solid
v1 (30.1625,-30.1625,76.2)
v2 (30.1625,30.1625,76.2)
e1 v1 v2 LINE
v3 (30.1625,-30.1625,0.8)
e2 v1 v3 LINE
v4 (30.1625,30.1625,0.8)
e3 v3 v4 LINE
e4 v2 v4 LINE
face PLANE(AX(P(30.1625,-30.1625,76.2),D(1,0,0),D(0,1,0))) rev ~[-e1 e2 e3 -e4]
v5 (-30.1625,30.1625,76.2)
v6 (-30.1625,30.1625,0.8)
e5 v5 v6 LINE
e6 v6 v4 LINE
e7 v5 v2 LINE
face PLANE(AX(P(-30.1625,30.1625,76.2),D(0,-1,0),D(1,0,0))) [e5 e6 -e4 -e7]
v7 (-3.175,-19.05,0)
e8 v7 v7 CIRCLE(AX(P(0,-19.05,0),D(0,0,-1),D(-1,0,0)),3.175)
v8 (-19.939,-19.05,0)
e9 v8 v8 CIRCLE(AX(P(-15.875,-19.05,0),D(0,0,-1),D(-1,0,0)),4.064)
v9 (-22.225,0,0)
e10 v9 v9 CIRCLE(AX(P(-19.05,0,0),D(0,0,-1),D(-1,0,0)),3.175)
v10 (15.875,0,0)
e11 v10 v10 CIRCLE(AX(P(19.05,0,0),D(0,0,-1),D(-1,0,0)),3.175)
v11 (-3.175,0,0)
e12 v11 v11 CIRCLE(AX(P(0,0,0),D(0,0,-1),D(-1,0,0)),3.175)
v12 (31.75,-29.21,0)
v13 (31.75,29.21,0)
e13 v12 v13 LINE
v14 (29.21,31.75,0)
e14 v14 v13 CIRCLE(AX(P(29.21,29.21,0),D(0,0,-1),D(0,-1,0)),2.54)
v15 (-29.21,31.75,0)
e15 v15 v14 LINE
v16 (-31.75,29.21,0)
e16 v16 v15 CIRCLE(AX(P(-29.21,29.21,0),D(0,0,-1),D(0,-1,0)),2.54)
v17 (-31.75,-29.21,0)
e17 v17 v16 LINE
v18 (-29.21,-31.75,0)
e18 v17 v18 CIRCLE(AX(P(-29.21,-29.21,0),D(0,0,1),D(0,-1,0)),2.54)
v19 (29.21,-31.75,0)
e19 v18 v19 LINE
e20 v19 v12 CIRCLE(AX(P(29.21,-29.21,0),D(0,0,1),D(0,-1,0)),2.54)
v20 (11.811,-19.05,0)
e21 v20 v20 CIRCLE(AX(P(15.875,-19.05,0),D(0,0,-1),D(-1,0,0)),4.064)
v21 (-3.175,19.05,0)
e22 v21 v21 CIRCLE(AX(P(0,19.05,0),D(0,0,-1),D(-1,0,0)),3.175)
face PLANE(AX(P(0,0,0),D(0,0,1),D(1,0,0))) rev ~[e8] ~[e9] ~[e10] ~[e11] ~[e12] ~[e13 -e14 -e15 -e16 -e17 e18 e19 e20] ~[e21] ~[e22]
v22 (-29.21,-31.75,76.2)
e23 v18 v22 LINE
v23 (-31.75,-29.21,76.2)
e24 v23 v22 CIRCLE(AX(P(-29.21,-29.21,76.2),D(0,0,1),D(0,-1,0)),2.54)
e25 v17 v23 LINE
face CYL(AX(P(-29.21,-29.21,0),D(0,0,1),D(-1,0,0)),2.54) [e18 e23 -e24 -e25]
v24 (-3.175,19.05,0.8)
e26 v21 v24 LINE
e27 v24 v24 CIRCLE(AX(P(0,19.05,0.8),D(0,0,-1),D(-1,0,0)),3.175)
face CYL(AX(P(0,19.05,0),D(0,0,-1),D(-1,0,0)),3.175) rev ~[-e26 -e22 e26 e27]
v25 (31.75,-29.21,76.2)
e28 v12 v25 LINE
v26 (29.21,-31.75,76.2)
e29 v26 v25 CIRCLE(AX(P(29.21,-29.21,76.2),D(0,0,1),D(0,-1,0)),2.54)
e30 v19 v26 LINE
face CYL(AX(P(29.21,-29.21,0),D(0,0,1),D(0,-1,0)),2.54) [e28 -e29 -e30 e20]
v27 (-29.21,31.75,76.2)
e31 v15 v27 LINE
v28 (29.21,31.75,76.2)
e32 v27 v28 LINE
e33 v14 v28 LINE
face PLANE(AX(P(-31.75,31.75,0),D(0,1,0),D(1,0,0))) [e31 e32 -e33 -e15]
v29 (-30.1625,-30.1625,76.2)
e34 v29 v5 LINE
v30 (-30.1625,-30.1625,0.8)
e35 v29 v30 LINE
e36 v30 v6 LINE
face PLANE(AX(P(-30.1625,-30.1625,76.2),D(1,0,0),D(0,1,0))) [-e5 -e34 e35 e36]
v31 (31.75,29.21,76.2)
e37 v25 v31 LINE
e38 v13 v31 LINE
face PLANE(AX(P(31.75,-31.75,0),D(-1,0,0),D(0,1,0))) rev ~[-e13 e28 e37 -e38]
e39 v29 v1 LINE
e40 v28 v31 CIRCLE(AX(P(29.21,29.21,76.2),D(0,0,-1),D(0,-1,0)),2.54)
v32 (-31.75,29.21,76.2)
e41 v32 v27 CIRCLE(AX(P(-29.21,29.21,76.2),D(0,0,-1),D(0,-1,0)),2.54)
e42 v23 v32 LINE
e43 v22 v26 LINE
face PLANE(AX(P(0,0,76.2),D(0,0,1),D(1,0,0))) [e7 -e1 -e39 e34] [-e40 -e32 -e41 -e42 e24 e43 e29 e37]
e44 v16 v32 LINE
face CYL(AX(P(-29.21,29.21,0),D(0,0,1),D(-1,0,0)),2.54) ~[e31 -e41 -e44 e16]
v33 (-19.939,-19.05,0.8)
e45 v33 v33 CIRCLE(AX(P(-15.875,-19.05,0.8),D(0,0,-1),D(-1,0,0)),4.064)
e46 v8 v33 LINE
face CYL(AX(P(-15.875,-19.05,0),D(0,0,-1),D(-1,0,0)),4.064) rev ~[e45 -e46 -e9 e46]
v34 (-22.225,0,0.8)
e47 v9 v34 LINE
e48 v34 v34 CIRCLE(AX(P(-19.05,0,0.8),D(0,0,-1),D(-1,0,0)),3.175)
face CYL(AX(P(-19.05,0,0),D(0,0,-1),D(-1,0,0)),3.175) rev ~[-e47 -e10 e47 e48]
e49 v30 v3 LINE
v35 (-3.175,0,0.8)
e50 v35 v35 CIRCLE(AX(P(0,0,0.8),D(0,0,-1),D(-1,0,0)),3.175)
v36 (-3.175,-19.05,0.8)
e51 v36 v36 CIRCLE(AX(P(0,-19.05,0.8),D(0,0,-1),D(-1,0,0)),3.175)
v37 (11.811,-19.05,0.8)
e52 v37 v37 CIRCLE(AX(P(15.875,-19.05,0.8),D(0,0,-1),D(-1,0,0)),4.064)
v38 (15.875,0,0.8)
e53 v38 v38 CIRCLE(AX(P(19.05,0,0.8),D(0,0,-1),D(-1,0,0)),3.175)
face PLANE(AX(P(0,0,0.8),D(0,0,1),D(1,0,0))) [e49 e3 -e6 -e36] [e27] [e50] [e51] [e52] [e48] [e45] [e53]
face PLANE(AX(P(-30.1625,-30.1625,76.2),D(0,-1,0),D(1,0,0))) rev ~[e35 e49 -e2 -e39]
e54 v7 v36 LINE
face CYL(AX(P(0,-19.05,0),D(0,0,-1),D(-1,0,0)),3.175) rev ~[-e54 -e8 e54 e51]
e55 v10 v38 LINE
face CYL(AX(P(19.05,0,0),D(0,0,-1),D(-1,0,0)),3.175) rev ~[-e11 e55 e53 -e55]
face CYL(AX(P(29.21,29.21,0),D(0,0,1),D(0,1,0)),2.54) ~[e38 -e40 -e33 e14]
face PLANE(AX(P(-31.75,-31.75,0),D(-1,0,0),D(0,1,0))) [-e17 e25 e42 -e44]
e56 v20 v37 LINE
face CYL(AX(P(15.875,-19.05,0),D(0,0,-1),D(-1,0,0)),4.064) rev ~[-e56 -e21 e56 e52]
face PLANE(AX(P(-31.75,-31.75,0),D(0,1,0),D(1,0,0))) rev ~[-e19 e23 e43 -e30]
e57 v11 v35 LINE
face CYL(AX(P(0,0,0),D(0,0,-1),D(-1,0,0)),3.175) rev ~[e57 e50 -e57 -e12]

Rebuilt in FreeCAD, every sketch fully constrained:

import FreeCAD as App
import Part
import Sketcher
Q = App.Units.Quantity


def edges_at(feature, points):
    """Names of the edges that pass closest to the given points."""
    edges = feature.Shape.Edges
    near = lambda p: min(range(len(edges)), key=lambda i: edges[i].distToShape(Part.Vertex(*p))[0])
    return sorted({f"Edge{near(p) + 1}" for p in points})


def add_polygon(sketch, points):
    """Adds a closed chain of lines whose ends are joined by coincident constraints."""
    first, n = sketch.GeometryCount, len(points)
    for a, b in zip(points, points[1:] + points[:1]):
        sketch.addGeometry(Part.LineSegment(App.Vector(*a, 0), App.Vector(*b, 0)), False)
    for i in range(n):
        sketch.addConstraint(Sketcher.Constraint("Coincident", first + i, 2, first + (i + 1) % n, 1))

doc = App.newDocument("Part")
body = doc.addObject("PartDesign::Body", "Body")

sketch1 = doc.addObject("Sketcher::SketchObject", "Sketch")
body.addObject(sketch1)
sketch1.AttachmentSupport = (doc.XY_Plane, [""])
sketch1.MapMode = "FlatFace"
add_polygon(sketch1, [(-32, 32), (-32, -32), (32, -32), (32, 32)])
sketch1.addConstraint([
    Sketcher.Constraint("Vertical", 0),
    Sketcher.Constraint("Horizontal", 1),
    Sketcher.Constraint("Vertical", 2),
    Sketcher.Constraint("Horizontal", 3),
    Sketcher.Constraint("Symmetric", 0, 2, 2, 2, -1, 1),
    Sketcher.Constraint("Equal", 3, 0),
    Sketcher.Constraint("DistanceX", 1, 1, 1, 2, Q("2.5 in")),
])
pad1 = doc.addObject("PartDesign::Pad", "Pad")
body.addObject(pad1)
pad1.Profile = sketch1
pad1.Length = Q("3 in")

sketch2 = doc.addObject("Sketcher::SketchObject", "Sketch001")
body.addObject(sketch2)
sketch2.AttachmentSupport = (doc.XY_Plane, [""])
sketch2.MapMode = "FlatFace"
sketch2.AttachmentOffset = App.Placement(App.Vector(0, 0, 3 * 25.4), App.Rotation())
add_polygon(sketch2, [(-30, 30), (-30, -30), (30, -30), (30, 30)])
sketch2.addConstraint([
    Sketcher.Constraint("Vertical", 0),
    Sketcher.Constraint("Horizontal", 1),
    Sketcher.Constraint("Vertical", 2),
    Sketcher.Constraint("Horizontal", 3),
    Sketcher.Constraint("Symmetric", 0, 2, 2, 2, -1, 1),
    Sketcher.Constraint("Equal", 3, 0),
    Sketcher.Constraint("DistanceX", 1, 1, 1, 2, Q("2.375 in")),
])
pocket1 = doc.addObject("PartDesign::Pocket", "Pocket")
body.addObject(pocket1)
pocket1.Profile = sketch2
pocket1.Length = 75.4
doc.recompute()

fillet = doc.addObject("PartDesign::Fillet", "Fillet")
body.addObject(fillet)
fillet.Base = (pocket1, edges_at(pocket1, [
    (31.75, -31.75, 38.1),
    (-31.75, -31.75, 38.1),
    (-31.75, 31.75, 38.1),
    (31.75, 31.75, 38.1),
]))
fillet.Radius = Q("0.1 in")

sketch3 = doc.addObject("Sketcher::SketchObject", "Sketch002")
body.addObject(sketch3)
sketch3.AttachmentSupport = (doc.XY_Plane, [""])
sketch3.MapMode = "FlatFace"
sketch3.addGeometry([
    Part.Circle(App.Vector(0, 19.1, 0), App.Vector(0, 0, 1), 3.2),
    Part.Circle(App.Vector(0, -19.1, 0), App.Vector(0, 0, 1), 3.2),
    Part.Circle(App.Vector(0, 0, 0), App.Vector(0, 0, 1), 3.2),
    Part.Circle(App.Vector(-19.1, 0, 0), App.Vector(0, 0, 1), 3.2),
    Part.Circle(App.Vector(19.1, 0, 0), App.Vector(0, 0, 1), 3.2),
], False)
sketch3.addConstraint([
    Sketcher.Constraint("Coincident", 2, 3, -1, 1),
    Sketcher.Constraint("Equal", 0, 1),
    Sketcher.Constraint("Equal", 1, 2),
    Sketcher.Constraint("Equal", 2, 3),
    Sketcher.Constraint("Equal", 3, 4),
    Sketcher.Constraint("Symmetric", 0, 3, 1, 3, -1, 1),
    Sketcher.Constraint("Symmetric", 3, 3, 4, 3, -1, 1),
    Sketcher.Constraint("PointOnObject", 0, 3, -2),
    Sketcher.Constraint("PointOnObject", 3, 3, -1),
    Sketcher.Constraint("Diameter", 0, Q("0.25 in")),
    Sketcher.Constraint("DistanceY", 1, 3, 0, 3, Q("1.5 in")),
    Sketcher.Constraint("DistanceX", 3, 3, 4, 3, Q("1.5 in")),
])
pocket2 = doc.addObject("PartDesign::Pocket", "Pocket001")
body.addObject(pocket2)
pocket2.Profile = sketch3
pocket2.Type = "ThroughAll"
pocket2.Reversed = True

sketch4 = doc.addObject("Sketcher::SketchObject", "Sketch003")
body.addObject(sketch4)
sketch4.AttachmentSupport = (doc.XY_Plane, [""])
sketch4.MapMode = "FlatFace"
sketch4.addGeometry([
    Part.Circle(App.Vector(15.9, -19.1, 0), App.Vector(0, 0, 1), 4.1),
    Part.Circle(App.Vector(-15.9, -19.1, 0), App.Vector(0, 0, 1), 4.1),
], False)
sketch4.addConstraint([
    Sketcher.Constraint("Equal", 0, 1),
    Sketcher.Constraint("Symmetric", 0, 3, 1, 3, -2),
    Sketcher.Constraint("Diameter", 0, Q("0.32 in")),
    Sketcher.Constraint("DistanceY", 0, 3, -1, 1, Q("0.75 in")),
    Sketcher.Constraint("DistanceX", 1, 3, 0, 3, Q("1.25 in")),
])
pocket3 = doc.addObject("PartDesign::Pocket", "Pocket002")
body.addObject(pocket3)
pocket3.Profile = sketch4
pocket3.Type = "ThroughAll"
pocket3.Reversed = True

doc.recompute()
